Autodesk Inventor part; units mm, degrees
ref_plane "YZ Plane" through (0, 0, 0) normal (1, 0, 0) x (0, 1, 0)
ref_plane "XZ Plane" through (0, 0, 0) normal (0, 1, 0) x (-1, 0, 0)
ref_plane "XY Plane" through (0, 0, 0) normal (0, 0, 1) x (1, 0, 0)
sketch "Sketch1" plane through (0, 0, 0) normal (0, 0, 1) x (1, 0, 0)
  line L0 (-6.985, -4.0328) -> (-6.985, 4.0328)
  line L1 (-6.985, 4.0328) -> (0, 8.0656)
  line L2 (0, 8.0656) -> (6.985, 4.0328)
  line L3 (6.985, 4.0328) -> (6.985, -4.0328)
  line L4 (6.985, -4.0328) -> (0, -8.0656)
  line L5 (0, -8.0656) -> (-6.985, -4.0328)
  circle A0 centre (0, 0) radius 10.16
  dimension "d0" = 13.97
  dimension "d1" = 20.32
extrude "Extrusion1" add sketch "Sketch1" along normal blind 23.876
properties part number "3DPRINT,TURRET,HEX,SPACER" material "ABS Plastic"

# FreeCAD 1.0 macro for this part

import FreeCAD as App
import Part
import Sketcher

V = App.Vector
Q = App.Units.Quantity

doc = App.newDocument("Part")
body = doc.addObject("PartDesign::Body", "Body")

# Sketch on XY plane
sketch1 = body.newObject("Sketcher::SketchObject", "Sketch")
sketch1.AttachmentSupport = (doc.getObject("XY_Plane"), [""])
sketch1.MapMode = "FlatFace"
sketch1.addGeometry(Part.Circle(V(0, 0, 0), V(0, 0, 1), 10), False)
sketch1.addGeometry(Part.LineSegment(V(0, -8, 0), V(-7, -4, 0)), False)
sketch1.addGeometry(Part.LineSegment(V(-7, -4, 0), V(-7, 4, 0)), False)
sketch1.addGeometry(Part.LineSegment(V(-7, 4, 0), V(0, 8, 0)), False)
sketch1.addGeometry(Part.LineSegment(V(0, 8, 0), V(7, 4, 0)), False)
sketch1.addGeometry(Part.LineSegment(V(7, 4, 0), V(7, -4, 0)), False)
sketch1.addGeometry(Part.LineSegment(V(7, -4, 0), V(0, -8, 0)), False)
sketch1.addConstraint(Sketcher.Constraint("Coincident", 1, 2, 2, 1))
sketch1.addConstraint(Sketcher.Constraint("Coincident", 2, 2, 3, 1))
sketch1.addConstraint(Sketcher.Constraint("Coincident", 3, 2, 4, 1))
sketch1.addConstraint(Sketcher.Constraint("Coincident", 4, 2, 5, 1))
sketch1.addConstraint(Sketcher.Constraint("Coincident", 5, 2, 6, 1))
sketch1.addConstraint(Sketcher.Constraint("Coincident", 6, 2, 1, 1))
sketch1.addConstraint(Sketcher.Constraint("Vertical", 2))
sketch1.addConstraint(Sketcher.Constraint("Vertical", 5))
sketch1.addConstraint(Sketcher.Constraint("Coincident", 0, 3, -1, 1))
sketch1.addConstraint(Sketcher.Constraint("Symmetric", 1, 2, 4, 2, -1, 1))
sketch1.addConstraint(Sketcher.Constraint("Symmetric", 3, 2, 6, 2, -1, 1))
sketch1.addConstraint(Sketcher.Constraint("PointOnObject", 3, 2, -2))
sketch1.addConstraint(Sketcher.Constraint("Parallel", 3, 6))
sketch1.addConstraint(Sketcher.Constraint("Horizontal", 2, 2, 4, 2))
sketch1.addConstraint(Sketcher.Constraint("Diameter", 0, Q("0.8 in")))
sketch1.addConstraint(Sketcher.Constraint("DistanceX", 2, 2, 4, 2, Q("0.55 in")))
sketch1.addConstraint(Sketcher.Constraint("Angle", 1, Q("150 deg")))
sketch1.addConstraint(Sketcher.Constraint("DistanceY", 2, 1, 2, 2, 8.0656))
pad1 = body.newObject("PartDesign::Pad", "Pad")
pad1.Profile = sketch1
pad1.Length = Q("0.94 in")

doc.recompute()
